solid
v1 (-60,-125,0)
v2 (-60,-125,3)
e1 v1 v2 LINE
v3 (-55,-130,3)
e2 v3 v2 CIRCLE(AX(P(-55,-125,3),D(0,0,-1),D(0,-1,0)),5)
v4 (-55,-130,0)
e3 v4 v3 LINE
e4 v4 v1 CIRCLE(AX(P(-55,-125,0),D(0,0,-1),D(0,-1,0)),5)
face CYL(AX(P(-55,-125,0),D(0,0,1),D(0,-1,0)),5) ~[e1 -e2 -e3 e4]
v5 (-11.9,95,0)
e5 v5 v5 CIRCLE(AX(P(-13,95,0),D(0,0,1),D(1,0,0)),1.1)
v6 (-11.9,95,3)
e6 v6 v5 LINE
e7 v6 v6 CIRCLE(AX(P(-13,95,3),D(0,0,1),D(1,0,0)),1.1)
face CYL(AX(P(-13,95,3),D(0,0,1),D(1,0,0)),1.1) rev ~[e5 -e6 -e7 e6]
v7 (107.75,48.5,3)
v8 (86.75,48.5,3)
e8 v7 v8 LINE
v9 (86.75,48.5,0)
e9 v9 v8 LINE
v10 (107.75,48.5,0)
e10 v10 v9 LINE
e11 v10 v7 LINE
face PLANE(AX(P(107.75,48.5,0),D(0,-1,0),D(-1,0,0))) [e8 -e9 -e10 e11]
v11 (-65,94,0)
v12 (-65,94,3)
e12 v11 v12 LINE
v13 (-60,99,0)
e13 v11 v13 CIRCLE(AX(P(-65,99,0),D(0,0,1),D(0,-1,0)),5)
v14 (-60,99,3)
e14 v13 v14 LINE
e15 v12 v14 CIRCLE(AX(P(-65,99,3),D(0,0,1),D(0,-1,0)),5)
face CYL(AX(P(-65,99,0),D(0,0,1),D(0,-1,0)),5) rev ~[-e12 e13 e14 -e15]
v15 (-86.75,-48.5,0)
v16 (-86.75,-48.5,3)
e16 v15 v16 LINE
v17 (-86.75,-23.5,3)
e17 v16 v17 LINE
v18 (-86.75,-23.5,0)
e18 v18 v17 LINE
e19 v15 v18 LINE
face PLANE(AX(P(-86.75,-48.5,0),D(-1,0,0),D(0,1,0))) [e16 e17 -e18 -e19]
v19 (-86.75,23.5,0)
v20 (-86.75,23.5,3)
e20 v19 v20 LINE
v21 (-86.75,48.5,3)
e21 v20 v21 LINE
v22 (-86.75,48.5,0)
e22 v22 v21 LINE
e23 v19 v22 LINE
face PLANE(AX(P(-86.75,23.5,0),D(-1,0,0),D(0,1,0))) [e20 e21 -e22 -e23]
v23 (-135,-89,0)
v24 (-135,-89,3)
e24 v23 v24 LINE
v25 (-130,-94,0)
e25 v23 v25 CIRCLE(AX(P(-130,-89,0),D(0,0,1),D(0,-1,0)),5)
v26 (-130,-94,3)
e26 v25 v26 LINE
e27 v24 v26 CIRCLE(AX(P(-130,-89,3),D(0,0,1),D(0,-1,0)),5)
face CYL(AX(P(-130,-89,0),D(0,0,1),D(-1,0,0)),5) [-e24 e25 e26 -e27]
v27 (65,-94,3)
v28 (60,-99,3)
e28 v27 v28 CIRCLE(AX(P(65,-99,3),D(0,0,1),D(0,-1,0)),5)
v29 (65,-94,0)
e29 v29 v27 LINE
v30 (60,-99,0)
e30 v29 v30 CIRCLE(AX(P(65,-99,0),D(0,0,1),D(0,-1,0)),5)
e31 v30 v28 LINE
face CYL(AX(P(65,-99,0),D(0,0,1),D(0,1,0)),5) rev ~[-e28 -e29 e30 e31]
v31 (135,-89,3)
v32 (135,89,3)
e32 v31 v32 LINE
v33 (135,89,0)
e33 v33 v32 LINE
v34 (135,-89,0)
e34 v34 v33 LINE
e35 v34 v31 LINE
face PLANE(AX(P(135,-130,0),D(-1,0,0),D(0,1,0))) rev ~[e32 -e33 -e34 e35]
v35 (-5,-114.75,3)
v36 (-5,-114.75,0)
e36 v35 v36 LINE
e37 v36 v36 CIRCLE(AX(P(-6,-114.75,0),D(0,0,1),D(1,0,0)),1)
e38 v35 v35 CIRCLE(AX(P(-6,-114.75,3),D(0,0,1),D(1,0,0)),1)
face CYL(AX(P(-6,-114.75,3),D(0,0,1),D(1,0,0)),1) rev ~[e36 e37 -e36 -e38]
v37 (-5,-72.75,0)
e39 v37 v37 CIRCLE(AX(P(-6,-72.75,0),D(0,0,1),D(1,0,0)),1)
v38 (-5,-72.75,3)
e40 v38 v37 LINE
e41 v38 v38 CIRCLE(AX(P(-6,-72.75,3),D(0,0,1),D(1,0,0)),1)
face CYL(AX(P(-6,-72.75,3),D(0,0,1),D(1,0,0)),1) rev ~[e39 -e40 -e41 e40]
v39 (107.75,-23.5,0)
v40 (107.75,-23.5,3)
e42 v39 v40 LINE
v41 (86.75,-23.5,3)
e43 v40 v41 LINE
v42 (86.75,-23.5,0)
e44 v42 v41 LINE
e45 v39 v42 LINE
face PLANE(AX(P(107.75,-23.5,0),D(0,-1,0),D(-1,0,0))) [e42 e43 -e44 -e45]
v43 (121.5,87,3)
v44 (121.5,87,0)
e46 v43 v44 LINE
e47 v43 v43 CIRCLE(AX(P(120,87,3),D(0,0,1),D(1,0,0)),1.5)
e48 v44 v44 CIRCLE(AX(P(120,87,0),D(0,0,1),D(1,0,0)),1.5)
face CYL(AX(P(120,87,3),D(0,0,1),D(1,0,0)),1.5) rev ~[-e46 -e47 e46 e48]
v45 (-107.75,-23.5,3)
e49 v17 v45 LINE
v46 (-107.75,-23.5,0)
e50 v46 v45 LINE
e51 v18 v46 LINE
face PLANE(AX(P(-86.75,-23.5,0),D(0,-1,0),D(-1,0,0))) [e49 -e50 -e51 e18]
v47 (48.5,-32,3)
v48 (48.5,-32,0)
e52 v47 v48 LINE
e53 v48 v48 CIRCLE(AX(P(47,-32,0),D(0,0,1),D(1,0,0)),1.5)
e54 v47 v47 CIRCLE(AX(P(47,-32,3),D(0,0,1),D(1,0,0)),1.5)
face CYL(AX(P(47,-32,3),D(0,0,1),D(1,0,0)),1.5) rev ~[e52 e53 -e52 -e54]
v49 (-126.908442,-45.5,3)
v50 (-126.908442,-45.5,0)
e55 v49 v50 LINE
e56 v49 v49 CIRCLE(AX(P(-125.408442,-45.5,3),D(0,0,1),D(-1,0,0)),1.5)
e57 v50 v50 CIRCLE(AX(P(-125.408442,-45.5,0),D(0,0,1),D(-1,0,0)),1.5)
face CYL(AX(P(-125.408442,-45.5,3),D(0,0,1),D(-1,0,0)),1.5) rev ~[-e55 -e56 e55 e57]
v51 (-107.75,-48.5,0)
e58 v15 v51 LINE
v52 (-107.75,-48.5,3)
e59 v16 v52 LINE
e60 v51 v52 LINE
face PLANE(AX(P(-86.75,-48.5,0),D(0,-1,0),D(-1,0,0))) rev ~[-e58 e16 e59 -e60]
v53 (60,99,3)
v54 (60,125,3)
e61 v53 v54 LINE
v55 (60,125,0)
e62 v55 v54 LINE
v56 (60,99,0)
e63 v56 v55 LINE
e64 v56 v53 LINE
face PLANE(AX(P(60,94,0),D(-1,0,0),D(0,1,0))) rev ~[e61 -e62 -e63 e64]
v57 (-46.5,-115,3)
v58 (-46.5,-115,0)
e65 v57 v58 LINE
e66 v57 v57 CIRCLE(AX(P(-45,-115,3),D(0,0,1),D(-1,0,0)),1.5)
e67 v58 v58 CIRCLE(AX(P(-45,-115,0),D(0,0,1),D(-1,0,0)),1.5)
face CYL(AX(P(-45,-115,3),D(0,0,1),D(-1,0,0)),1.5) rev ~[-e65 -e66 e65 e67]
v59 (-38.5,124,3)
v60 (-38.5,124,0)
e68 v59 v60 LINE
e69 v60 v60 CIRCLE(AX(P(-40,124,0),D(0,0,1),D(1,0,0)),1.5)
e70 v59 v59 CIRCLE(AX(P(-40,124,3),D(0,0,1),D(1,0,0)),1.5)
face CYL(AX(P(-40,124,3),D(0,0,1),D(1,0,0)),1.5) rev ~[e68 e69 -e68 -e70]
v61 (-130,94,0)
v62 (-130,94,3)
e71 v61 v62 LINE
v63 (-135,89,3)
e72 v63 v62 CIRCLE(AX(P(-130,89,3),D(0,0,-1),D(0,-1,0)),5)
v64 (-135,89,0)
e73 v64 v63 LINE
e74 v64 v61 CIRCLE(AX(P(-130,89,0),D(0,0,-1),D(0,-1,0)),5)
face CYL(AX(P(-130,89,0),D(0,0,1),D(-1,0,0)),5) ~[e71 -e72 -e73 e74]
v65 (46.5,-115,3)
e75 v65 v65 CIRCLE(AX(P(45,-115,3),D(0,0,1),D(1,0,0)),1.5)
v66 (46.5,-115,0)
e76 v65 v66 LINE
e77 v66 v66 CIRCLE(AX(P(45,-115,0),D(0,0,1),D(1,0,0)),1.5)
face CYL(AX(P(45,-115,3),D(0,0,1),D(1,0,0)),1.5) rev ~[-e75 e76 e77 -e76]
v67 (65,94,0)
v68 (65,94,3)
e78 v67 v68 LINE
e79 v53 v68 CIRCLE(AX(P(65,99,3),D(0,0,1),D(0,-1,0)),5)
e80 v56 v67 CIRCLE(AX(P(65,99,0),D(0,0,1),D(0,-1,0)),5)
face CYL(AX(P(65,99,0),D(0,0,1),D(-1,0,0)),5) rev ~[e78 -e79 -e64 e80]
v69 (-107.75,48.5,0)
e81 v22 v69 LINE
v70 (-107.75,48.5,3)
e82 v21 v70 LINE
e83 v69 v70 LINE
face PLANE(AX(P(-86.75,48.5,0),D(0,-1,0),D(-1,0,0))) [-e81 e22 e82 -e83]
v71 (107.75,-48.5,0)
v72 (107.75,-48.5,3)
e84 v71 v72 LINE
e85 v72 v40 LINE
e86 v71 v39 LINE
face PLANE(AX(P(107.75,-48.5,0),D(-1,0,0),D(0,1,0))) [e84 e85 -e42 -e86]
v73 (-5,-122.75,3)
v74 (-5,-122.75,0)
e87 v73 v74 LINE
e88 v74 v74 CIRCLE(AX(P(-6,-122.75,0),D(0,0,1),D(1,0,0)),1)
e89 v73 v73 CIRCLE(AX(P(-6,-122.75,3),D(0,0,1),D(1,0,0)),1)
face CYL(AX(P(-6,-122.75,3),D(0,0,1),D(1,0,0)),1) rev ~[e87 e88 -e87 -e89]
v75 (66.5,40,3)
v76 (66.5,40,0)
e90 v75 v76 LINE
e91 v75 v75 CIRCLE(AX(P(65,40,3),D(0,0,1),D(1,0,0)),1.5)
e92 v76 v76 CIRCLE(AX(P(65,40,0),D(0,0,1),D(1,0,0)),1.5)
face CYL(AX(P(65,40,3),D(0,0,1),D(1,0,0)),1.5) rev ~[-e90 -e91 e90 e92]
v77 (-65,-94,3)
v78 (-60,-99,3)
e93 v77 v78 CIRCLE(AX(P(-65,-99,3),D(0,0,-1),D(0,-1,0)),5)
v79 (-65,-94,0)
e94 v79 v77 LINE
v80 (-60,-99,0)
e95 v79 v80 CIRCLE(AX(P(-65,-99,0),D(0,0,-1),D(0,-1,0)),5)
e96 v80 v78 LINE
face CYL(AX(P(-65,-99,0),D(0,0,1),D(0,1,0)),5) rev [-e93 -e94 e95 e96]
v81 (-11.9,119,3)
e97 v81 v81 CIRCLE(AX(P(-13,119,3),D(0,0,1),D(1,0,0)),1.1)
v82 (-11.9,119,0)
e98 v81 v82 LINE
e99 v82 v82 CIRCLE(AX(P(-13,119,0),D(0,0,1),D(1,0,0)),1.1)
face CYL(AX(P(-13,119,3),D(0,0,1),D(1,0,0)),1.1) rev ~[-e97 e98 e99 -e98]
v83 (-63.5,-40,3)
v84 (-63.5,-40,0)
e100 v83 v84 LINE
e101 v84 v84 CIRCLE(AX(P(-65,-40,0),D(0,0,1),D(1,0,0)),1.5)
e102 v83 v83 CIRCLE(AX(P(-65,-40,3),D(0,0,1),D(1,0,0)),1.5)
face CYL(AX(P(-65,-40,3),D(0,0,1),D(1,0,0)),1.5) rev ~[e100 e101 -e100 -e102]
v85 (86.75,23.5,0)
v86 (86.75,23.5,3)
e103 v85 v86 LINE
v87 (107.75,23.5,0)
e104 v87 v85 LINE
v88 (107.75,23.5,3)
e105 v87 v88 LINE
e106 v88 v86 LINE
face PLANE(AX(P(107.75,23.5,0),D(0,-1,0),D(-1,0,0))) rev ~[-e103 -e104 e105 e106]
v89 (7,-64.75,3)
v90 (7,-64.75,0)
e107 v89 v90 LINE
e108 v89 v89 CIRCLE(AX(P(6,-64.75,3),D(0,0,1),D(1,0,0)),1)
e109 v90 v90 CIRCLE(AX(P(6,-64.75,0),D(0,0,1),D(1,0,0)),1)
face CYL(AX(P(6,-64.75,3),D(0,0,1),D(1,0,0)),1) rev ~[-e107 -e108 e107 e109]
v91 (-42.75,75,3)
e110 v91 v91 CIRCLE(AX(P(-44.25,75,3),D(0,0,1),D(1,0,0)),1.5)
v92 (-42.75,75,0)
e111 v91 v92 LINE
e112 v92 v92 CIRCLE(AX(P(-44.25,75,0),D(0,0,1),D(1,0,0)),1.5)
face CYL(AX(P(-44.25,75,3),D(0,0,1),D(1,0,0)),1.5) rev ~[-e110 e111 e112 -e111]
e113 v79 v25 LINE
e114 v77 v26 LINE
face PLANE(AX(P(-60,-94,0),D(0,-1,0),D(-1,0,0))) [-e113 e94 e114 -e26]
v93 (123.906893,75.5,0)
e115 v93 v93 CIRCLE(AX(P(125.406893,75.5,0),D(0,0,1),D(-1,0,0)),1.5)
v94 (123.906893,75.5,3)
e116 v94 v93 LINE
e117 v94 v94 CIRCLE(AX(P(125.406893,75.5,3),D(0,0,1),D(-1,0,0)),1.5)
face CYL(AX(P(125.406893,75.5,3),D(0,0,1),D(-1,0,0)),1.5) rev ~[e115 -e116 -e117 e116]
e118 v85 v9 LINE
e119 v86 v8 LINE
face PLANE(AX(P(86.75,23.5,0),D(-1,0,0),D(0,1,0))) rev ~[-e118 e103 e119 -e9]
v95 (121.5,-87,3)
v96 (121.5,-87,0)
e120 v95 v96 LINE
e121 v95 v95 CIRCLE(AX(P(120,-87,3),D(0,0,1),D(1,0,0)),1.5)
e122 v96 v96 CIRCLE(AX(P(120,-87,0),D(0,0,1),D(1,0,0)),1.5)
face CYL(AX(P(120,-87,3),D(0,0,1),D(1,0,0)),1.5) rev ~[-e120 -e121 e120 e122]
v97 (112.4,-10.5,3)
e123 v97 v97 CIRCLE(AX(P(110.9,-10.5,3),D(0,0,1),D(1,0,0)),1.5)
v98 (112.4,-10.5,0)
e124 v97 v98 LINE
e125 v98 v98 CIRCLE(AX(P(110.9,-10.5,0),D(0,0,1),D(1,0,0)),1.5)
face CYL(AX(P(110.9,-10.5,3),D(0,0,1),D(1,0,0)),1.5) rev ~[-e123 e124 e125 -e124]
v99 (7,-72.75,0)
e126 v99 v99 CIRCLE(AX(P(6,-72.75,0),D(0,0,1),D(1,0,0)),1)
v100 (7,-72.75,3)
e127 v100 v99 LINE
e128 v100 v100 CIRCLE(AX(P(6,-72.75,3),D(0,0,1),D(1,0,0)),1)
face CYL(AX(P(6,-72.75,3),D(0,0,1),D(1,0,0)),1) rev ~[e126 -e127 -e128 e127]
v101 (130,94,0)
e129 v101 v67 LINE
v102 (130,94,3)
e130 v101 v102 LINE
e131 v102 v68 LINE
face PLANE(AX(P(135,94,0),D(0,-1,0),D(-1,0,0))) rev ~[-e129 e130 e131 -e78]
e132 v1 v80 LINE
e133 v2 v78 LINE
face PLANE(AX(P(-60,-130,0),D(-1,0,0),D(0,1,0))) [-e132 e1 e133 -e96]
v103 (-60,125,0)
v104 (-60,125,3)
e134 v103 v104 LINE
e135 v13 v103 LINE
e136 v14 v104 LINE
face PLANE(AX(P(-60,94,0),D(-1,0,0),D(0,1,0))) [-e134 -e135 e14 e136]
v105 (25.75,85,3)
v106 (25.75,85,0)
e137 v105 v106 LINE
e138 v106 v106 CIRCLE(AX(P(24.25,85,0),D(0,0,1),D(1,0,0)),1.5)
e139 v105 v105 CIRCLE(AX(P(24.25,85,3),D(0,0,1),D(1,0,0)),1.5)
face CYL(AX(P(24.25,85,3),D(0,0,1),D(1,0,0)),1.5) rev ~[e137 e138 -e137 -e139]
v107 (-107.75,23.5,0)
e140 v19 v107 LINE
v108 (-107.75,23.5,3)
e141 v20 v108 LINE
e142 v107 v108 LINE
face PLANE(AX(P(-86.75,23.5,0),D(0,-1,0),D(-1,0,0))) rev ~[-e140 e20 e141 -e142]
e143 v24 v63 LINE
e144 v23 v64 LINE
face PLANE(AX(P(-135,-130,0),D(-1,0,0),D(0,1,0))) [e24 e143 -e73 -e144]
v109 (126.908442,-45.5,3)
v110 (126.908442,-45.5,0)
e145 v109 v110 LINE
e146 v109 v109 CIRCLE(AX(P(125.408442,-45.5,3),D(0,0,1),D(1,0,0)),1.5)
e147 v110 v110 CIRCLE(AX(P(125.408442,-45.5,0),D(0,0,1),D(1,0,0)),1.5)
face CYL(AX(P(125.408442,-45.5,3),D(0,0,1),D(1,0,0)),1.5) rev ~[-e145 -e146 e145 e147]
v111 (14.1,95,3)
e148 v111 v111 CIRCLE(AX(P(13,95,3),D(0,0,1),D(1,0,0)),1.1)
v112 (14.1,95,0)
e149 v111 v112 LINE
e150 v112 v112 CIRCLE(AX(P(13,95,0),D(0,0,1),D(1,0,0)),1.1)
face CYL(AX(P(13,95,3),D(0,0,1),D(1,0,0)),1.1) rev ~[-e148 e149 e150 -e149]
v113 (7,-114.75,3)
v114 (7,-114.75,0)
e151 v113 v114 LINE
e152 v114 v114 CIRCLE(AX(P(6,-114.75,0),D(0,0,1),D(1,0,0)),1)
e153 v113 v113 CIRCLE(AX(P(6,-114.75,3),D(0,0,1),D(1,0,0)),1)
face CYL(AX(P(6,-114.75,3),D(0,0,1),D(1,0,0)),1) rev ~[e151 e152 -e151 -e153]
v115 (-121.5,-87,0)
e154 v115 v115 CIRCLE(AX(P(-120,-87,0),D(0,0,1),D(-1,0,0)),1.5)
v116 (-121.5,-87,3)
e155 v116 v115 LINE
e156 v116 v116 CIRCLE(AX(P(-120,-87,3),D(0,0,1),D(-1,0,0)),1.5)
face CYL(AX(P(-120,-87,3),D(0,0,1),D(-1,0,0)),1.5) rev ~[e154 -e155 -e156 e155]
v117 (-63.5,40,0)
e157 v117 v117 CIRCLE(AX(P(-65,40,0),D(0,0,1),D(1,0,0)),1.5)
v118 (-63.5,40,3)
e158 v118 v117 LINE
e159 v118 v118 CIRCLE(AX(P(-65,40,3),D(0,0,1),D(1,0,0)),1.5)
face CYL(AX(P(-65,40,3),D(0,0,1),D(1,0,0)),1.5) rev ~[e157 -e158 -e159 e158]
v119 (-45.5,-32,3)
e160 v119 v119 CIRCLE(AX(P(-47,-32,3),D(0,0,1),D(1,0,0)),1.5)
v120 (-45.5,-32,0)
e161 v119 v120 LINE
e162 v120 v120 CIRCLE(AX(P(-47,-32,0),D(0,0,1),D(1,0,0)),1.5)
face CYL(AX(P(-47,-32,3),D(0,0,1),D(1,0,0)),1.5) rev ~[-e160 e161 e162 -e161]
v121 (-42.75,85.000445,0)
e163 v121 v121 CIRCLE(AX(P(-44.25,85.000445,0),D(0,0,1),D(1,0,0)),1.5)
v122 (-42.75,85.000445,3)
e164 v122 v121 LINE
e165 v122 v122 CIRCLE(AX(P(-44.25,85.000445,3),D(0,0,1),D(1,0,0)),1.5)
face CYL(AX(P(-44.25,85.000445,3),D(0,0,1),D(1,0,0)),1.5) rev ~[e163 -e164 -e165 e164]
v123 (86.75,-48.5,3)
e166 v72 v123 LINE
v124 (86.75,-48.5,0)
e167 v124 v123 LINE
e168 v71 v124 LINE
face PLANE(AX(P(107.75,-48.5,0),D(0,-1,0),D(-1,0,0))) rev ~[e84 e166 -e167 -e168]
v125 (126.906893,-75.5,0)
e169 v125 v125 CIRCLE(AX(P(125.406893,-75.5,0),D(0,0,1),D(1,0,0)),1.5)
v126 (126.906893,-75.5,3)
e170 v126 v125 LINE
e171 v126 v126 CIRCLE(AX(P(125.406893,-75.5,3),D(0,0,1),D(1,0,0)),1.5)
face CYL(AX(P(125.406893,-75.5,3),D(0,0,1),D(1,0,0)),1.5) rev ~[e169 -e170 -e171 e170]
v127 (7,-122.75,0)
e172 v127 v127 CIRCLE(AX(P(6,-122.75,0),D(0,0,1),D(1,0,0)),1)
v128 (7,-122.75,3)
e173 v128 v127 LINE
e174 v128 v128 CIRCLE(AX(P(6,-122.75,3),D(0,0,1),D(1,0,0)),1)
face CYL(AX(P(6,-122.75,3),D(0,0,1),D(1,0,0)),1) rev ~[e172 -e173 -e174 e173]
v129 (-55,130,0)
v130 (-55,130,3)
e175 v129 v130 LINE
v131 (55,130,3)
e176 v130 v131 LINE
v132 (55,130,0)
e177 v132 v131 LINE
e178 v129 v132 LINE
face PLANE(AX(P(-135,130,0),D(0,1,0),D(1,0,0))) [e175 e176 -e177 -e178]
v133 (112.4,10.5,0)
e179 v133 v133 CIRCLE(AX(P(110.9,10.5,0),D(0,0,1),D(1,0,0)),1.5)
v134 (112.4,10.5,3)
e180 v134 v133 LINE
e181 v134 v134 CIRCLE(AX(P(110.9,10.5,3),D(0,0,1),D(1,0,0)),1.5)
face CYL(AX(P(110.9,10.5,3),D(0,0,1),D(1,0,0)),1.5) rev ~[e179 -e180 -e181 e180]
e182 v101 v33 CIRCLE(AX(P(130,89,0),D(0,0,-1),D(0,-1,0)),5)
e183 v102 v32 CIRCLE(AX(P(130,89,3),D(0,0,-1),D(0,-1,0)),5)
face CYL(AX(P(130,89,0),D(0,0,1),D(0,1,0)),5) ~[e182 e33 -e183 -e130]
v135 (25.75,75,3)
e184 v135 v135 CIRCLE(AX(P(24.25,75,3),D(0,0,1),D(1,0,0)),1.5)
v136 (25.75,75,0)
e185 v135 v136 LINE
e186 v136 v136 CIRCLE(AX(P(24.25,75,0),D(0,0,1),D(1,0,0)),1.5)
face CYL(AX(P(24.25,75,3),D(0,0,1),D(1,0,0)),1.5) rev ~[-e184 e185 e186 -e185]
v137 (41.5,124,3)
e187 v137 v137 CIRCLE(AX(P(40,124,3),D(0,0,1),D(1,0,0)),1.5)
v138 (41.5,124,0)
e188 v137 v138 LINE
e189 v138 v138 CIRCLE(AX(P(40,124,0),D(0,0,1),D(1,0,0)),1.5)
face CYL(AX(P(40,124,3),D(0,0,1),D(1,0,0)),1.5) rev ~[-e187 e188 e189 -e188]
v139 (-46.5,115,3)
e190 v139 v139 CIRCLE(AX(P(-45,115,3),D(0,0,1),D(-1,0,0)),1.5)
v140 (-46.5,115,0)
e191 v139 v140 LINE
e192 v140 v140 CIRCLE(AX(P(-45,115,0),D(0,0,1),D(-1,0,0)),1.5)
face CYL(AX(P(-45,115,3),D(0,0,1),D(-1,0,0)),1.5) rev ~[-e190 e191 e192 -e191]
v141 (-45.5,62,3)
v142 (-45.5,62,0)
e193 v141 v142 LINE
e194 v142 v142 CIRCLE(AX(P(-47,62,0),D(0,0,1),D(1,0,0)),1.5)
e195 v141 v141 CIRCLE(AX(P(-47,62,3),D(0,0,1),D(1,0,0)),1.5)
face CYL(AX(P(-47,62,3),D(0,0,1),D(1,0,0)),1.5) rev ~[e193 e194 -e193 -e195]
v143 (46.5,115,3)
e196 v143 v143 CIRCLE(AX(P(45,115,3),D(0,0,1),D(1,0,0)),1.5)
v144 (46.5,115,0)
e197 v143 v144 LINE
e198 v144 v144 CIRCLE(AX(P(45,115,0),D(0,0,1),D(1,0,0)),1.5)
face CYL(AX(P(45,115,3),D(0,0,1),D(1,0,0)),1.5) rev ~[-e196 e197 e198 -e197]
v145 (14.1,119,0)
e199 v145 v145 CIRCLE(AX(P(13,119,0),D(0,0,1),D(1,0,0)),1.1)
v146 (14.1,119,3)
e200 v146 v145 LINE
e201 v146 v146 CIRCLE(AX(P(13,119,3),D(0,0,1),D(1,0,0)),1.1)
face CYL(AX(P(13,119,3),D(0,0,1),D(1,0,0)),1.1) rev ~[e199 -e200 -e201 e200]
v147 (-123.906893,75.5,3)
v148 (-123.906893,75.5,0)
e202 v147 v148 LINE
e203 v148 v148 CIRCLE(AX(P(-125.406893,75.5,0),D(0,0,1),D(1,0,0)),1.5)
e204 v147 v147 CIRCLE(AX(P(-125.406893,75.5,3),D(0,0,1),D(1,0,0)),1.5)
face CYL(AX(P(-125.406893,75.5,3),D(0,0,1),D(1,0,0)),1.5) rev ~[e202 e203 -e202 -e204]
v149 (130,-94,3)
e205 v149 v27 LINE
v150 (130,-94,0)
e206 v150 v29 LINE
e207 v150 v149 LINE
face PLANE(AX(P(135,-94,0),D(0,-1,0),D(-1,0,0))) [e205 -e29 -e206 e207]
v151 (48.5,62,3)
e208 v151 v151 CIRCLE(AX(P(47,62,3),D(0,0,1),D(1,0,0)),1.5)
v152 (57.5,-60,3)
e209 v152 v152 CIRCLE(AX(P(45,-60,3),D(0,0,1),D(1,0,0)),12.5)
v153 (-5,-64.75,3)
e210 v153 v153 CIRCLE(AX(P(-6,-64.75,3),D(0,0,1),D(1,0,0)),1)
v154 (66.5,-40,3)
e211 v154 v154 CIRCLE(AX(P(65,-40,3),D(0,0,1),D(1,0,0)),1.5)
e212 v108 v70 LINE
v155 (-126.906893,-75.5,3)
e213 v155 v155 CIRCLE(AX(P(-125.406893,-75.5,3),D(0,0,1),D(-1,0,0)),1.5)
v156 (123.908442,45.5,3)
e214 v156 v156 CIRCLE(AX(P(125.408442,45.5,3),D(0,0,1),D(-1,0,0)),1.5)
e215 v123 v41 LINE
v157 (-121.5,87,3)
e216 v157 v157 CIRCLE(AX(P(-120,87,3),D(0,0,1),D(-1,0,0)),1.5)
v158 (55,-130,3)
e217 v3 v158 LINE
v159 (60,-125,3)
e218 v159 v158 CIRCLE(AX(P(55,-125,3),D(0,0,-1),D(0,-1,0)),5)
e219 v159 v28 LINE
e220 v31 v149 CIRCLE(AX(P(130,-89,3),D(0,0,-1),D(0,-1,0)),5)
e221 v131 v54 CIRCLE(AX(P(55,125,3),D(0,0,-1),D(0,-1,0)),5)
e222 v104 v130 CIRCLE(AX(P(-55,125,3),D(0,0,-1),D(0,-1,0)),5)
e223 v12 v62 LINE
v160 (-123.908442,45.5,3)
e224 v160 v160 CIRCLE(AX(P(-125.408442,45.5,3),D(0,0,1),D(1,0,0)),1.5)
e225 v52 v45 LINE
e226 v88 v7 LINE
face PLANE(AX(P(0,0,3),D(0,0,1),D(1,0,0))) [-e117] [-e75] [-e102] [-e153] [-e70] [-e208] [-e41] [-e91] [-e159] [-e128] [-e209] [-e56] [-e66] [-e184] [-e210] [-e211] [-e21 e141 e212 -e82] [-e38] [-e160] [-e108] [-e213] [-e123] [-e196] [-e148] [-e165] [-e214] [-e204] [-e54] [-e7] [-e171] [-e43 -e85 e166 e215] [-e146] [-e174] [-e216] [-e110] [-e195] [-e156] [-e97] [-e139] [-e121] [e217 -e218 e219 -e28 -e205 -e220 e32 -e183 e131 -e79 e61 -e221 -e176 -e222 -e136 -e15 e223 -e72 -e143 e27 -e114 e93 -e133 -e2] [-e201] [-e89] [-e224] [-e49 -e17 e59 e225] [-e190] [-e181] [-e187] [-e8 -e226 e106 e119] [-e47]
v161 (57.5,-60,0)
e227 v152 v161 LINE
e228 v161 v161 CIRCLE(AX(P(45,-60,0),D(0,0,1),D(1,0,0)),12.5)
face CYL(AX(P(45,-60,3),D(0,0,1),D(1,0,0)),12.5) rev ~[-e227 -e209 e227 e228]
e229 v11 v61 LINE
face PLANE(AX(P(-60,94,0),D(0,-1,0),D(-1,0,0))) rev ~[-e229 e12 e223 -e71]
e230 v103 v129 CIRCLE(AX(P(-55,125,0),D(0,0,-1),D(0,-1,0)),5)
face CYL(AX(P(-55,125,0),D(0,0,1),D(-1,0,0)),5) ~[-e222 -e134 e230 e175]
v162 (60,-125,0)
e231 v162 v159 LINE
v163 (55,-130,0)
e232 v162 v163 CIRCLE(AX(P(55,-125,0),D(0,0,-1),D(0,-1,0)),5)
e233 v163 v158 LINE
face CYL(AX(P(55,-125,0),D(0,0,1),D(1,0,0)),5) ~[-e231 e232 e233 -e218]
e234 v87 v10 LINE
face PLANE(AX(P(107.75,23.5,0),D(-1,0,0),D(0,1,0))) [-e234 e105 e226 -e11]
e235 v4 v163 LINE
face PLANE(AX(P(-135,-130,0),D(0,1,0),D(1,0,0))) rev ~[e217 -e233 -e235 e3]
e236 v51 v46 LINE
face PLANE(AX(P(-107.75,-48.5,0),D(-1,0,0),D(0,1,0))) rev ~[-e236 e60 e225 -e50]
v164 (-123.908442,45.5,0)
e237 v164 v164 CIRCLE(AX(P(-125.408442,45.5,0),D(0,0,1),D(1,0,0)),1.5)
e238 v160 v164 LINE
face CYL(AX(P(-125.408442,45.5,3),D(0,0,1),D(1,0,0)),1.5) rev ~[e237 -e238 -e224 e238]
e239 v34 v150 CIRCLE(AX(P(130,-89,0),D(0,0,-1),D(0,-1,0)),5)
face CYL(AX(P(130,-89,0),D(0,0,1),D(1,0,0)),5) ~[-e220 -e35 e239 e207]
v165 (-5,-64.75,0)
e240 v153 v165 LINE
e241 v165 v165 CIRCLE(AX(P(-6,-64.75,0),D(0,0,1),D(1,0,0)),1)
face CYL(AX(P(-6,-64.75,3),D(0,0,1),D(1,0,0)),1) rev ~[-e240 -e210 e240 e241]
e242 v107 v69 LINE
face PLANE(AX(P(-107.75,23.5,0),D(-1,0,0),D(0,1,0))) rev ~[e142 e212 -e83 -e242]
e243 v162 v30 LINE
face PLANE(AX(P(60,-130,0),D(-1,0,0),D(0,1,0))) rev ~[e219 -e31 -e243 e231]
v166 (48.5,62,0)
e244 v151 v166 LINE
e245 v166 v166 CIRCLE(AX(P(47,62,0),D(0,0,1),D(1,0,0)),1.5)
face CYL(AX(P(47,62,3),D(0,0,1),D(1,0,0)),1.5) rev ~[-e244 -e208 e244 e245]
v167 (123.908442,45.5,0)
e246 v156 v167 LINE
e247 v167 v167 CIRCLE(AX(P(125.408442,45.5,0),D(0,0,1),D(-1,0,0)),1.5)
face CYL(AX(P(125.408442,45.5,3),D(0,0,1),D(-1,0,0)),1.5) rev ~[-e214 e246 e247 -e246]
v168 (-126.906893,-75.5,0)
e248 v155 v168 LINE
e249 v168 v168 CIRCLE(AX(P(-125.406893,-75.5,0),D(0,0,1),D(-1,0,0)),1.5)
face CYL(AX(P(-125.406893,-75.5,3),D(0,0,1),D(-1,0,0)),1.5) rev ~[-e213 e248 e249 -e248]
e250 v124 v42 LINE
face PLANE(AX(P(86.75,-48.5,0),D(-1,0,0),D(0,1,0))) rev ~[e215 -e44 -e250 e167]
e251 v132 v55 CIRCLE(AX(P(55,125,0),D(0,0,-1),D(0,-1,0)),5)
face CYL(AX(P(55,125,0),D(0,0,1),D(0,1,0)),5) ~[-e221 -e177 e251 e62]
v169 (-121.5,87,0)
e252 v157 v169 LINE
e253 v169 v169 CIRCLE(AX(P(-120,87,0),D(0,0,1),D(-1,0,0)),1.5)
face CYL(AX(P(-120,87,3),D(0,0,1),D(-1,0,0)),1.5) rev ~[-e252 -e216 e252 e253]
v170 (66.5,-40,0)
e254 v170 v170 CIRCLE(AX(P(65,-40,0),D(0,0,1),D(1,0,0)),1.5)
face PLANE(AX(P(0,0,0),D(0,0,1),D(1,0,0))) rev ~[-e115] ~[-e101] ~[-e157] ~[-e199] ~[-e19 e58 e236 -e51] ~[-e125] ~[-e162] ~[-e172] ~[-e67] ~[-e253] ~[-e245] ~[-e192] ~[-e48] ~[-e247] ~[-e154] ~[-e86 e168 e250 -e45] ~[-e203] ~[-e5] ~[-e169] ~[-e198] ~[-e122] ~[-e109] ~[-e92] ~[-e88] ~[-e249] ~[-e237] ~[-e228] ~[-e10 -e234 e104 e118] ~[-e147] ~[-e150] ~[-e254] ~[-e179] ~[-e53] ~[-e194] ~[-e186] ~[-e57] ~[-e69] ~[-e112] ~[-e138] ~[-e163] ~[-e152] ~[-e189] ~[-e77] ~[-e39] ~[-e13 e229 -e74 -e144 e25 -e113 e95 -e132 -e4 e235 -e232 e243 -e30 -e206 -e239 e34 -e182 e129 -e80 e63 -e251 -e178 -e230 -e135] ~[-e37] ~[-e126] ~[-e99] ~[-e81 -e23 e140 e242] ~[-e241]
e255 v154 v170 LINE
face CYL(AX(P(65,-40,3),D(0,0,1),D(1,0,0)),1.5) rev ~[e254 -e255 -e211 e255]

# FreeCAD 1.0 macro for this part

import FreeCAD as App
import Part
import Sketcher
from FreeCAD import Vector


def edges_at(feature, points):
    """Names of the edges that pass closest to the given points."""
    edges = feature.Shape.Edges
    near = lambda p: min(range(len(edges)), key=lambda i: edges[i].distToShape(Part.Vertex(*p))[0])
    return sorted({f"Edge{near(p) + 1}" for p in points})

doc = App.newDocument("Part")
body = doc.addObject("PartDesign::Body", "Body")

# Sketch on XY plane
sketch1 = body.newObject("Sketcher::SketchObject", "Sketch")
sketch1.AttachmentSupport = (doc.getObject("XY_Plane"), [""])
sketch1.MapMode = "FlatFace"
sketch1.addGeometry([
    Part.LineSegment(Vector(-135, 130, 0), Vector(-135, -130, 0)),
    Part.LineSegment(Vector(-135, -130, 0), Vector(135, -130, 0)),
    Part.LineSegment(Vector(135, -130, 0), Vector(135, 130, 0)),
    Part.LineSegment(Vector(135, 130, 0), Vector(-135, 130, 0)),
], False)
sketch1.addConstraint([
    Sketcher.Constraint("Coincident", 0, 2, 1, 1),
    Sketcher.Constraint("Coincident", 1, 2, 2, 1),
    Sketcher.Constraint("Coincident", 2, 2, 3, 1),
    Sketcher.Constraint("Coincident", 3, 2, 0, 1),
    Sketcher.Constraint("Vertical", 0),
    Sketcher.Constraint("Horizontal", 1),
    Sketcher.Constraint("Vertical", 2),
    Sketcher.Constraint("Horizontal", 3),
    Sketcher.Constraint("Symmetric", 0, 2, 2, 2, -1, 1),
    Sketcher.Constraint("DistanceX", 1, 1, 1, 2, 270.0),
    Sketcher.Constraint("DistanceY", 0, 2, 0, 1, 260.0),
])
pad1 = body.newObject("PartDesign::Pad", "Pad")
pad1.Profile = sketch1
pad1.Length = 3

# Sketch on XY plane
sketch2 = body.newObject("Sketcher::SketchObject", "Sketch001")
sketch2.AttachmentSupport = (doc.getObject("XY_Plane"), [""])
sketch2.MapMode = "FlatFace"
sketch2.addGeometry([
    Part.LineSegment(Vector(-60, -94, 0), Vector(-60, -130, 0)),
    Part.LineSegment(Vector(-60, -130, 0), Vector(-135, -130, 0)),
    Part.LineSegment(Vector(-135, -130, 0), Vector(-135, -94, 0)),
    Part.LineSegment(Vector(-135, -94, 0), Vector(-60, -94, 0)),
], False)
sketch2.addConstraint([
    Sketcher.Constraint("Coincident", 0, 2, 1, 1),
    Sketcher.Constraint("Coincident", 1, 2, 2, 1),
    Sketcher.Constraint("Coincident", 2, 2, 3, 1),
    Sketcher.Constraint("Coincident", 3, 2, 0, 1),
    Sketcher.Constraint("Vertical", 0),
    Sketcher.Constraint("Horizontal", 1),
    Sketcher.Constraint("Vertical", 2),
    Sketcher.Constraint("Horizontal", 3),
    Sketcher.Constraint("DistanceX", 1, 2, 1, 1, 75.0),
    Sketcher.Constraint("DistanceY", 0, 2, 0, 1, 36.0),
    Sketcher.Constraint("DistanceX", 0, 2, -1, 1, 60.0),
    Sketcher.Constraint("DistanceY", 0, 2, -1, 1, 130.0),
])
pocket1 = body.newObject("PartDesign::Pocket", "Pocket")
pocket1.Profile = sketch2
pocket1.Type = "UpToFirst"
pocket1.Reversed = True

# Sketch on XY plane
sketch3 = body.newObject("Sketcher::SketchObject", "Sketch002")
sketch3.AttachmentSupport = (doc.getObject("XY_Plane"), [""])
sketch3.MapMode = "FlatFace"
sketch3.addGeometry([
    Part.LineSegment(Vector(-87, -24, 0), Vector(-87, -48, 0)),
    Part.LineSegment(Vector(-87, -48, 0), Vector(-108, -48, 0)),
    Part.LineSegment(Vector(-108, -48, 0), Vector(-108, -24, 0)),
    Part.LineSegment(Vector(-108, -24, 0), Vector(-87, -24, 0)),
], False)
sketch3.addConstraint([
    Sketcher.Constraint("Coincident", 0, 2, 1, 1),
    Sketcher.Constraint("Coincident", 1, 2, 2, 1),
    Sketcher.Constraint("Coincident", 2, 2, 3, 1),
    Sketcher.Constraint("Coincident", 3, 2, 0, 1),
    Sketcher.Constraint("Vertical", 0),
    Sketcher.Constraint("Horizontal", 1),
    Sketcher.Constraint("Vertical", 2),
    Sketcher.Constraint("Horizontal", 3),
    Sketcher.Constraint("DistanceX", 1, 2, 1, 1, 21.0),
    Sketcher.Constraint("DistanceY", 0, 2, 0, 1, 25.0),
    Sketcher.Constraint("DistanceY", 0, 2, -1, 1, 48.5),
    Sketcher.Constraint("DistanceX", 0, 2, -1, 1, 86.75),
])
pocket2 = body.newObject("PartDesign::Pocket", "Pocket001")
pocket2.Profile = sketch3
pocket2.Type = "UpToFirst"
pocket2.Reversed = True

# Sketch on XY plane
sketch4 = body.newObject("Sketcher::SketchObject", "Sketch003")
sketch4.AttachmentSupport = (doc.getObject("XY_Plane"), [""])
sketch4.MapMode = "FlatFace"
sketch4.addGeometry([
    Part.LineSegment(Vector(135, 130, 0), Vector(135, 94, 0)),
    Part.LineSegment(Vector(135, 94, 0), Vector(60, 94, 0)),
    Part.LineSegment(Vector(60, 94, 0), Vector(60, 130, 0)),
    Part.LineSegment(Vector(60, 130, 0), Vector(135, 130, 0)),
], False)
sketch4.addConstraint([
    Sketcher.Constraint("Coincident", 0, 2, 1, 1),
    Sketcher.Constraint("Coincident", 1, 2, 2, 1),
    Sketcher.Constraint("Coincident", 2, 2, 3, 1),
    Sketcher.Constraint("Coincident", 3, 2, 0, 1),
    Sketcher.Constraint("Vertical", 0),
    Sketcher.Constraint("Horizontal", 1),
    Sketcher.Constraint("Vertical", 2),
    Sketcher.Constraint("Horizontal", 3),
    Sketcher.Constraint("DistanceX", 1, 2, 1, 1, 75.0),
    Sketcher.Constraint("DistanceY", 0, 2, 0, 1, 36.0),
    Sketcher.Constraint("DistanceX", -1, 1, 0, 2, 135.0),
    Sketcher.Constraint("DistanceY", -1, 1, 0, 2, 94.0),
])
pocket3 = body.newObject("PartDesign::Pocket", "Pocket002")
pocket3.Profile = sketch4
pocket3.Type = "UpToFirst"
pocket3.Reversed = True

# Sketch on XY plane
sketch5 = body.newObject("Sketcher::SketchObject", "Sketch004")
sketch5.AttachmentSupport = (doc.getObject("XY_Plane"), [""])
sketch5.MapMode = "FlatFace"
sketch5.addGeometry([
    Part.LineSegment(Vector(108, -24, 0), Vector(108, -48, 0)),
    Part.LineSegment(Vector(108, -48, 0), Vector(87, -48, 0)),
    Part.LineSegment(Vector(87, -48, 0), Vector(87, -24, 0)),
    Part.LineSegment(Vector(87, -24, 0), Vector(108, -24, 0)),
], False)
sketch5.addConstraint([
    Sketcher.Constraint("Coincident", 0, 2, 1, 1),
    Sketcher.Constraint("Coincident", 1, 2, 2, 1),
    Sketcher.Constraint("Coincident", 2, 2, 3, 1),
    Sketcher.Constraint("Coincident", 3, 2, 0, 1),
    Sketcher.Constraint("Vertical", 0),
    Sketcher.Constraint("Horizontal", 1),
    Sketcher.Constraint("Vertical", 2),
    Sketcher.Constraint("Horizontal", 3),
    Sketcher.Constraint("DistanceX", 1, 2, 1, 1, 21.0),
    Sketcher.Constraint("DistanceY", 0, 2, 0, 1, 25.0),
    Sketcher.Constraint("DistanceY", 0, 2, -1, 1, 48.5),
    Sketcher.Constraint("DistanceX", -1, 1, 0, 2, 107.75),
])
pocket4 = body.newObject("PartDesign::Pocket", "Pocket003")
pocket4.Profile = sketch5
pocket4.Type = "UpToFirst"
pocket4.Reversed = True

# Sketch on XY plane
sketch6 = body.newObject("Sketcher::SketchObject", "Sketch005")
sketch6.AttachmentSupport = (doc.getObject("XY_Plane"), [""])
sketch6.MapMode = "FlatFace"
sketch6.addGeometry([
    Part.LineSegment(Vector(135, -94, 0), Vector(135, -130, 0)),
    Part.LineSegment(Vector(135, -130, 0), Vector(60, -130, 0)),
    Part.LineSegment(Vector(60, -130, 0), Vector(60, -94, 0)),
    Part.LineSegment(Vector(60, -94, 0), Vector(135, -94, 0)),
], False)
sketch6.addConstraint([
    Sketcher.Constraint("Coincident", 0, 2, 1, 1),
    Sketcher.Constraint("Coincident", 1, 2, 2, 1),
    Sketcher.Constraint("Coincident", 2, 2, 3, 1),
    Sketcher.Constraint("Coincident", 3, 2, 0, 1),
    Sketcher.Constraint("Vertical", 0),
    Sketcher.Constraint("Horizontal", 1),
    Sketcher.Constraint("Vertical", 2),
    Sketcher.Constraint("Horizontal", 3),
    Sketcher.Constraint("DistanceX", 1, 2, 1, 1, 75.0),
    Sketcher.Constraint("DistanceY", 0, 2, 0, 1, 36.0),
    Sketcher.Constraint("DistanceX", -1, 1, 0, 2, 135.0),
    Sketcher.Constraint("DistanceY", 0, 2, -1, 1, 130.0),
])
pocket5 = body.newObject("PartDesign::Pocket", "Pocket004")
pocket5.Profile = sketch6
pocket5.Type = "UpToFirst"
pocket5.Reversed = True

# Sketch on XY plane
sketch7 = body.newObject("Sketcher::SketchObject", "Sketch006")
sketch7.AttachmentSupport = (doc.getObject("XY_Plane"), [""])
sketch7.MapMode = "FlatFace"
sketch7.addGeometry([
    Part.LineSegment(Vector(108, 48, 0), Vector(108, 24, 0)),
    Part.LineSegment(Vector(108, 24, 0), Vector(87, 24, 0)),
    Part.LineSegment(Vector(87, 24, 0), Vector(87, 48, 0)),
    Part.LineSegment(Vector(87, 48, 0), Vector(108, 48, 0)),
], False)
sketch7.addConstraint([
    Sketcher.Constraint("Coincident", 0, 2, 1, 1),
    Sketcher.Constraint("Coincident", 1, 2, 2, 1),
    Sketcher.Constraint("Coincident", 2, 2, 3, 1),
    Sketcher.Constraint("Coincident", 3, 2, 0, 1),
    Sketcher.Constraint("Vertical", 0),
    Sketcher.Constraint("Horizontal", 1),
    Sketcher.Constraint("Vertical", 2),
    Sketcher.Constraint("Horizontal", 3),
    Sketcher.Constraint("DistanceX", 1, 2, 1, 1, 21.0),
    Sketcher.Constraint("DistanceY", 0, 2, 0, 1, 25.0),
    Sketcher.Constraint("DistanceY", -1, 1, 0, 2, 23.5),
    Sketcher.Constraint("DistanceX", -1, 1, 0, 2, 107.75),
])
pocket6 = body.newObject("PartDesign::Pocket", "Pocket005")
pocket6.Profile = sketch7
pocket6.Type = "UpToFirst"
pocket6.Reversed = True

# Sketch on XY plane
sketch8 = body.newObject("Sketcher::SketchObject", "Sketch007")
sketch8.AttachmentSupport = (doc.getObject("XY_Plane"), [""])
sketch8.MapMode = "FlatFace"
sketch8.addGeometry([
    Part.LineSegment(Vector(-87, 48, 0), Vector(-87, 24, 0)),
    Part.LineSegment(Vector(-87, 24, 0), Vector(-108, 24, 0)),
    Part.LineSegment(Vector(-108, 24, 0), Vector(-108, 48, 0)),
    Part.LineSegment(Vector(-108, 48, 0), Vector(-87, 48, 0)),
], False)
sketch8.addConstraint([
    Sketcher.Constraint("Coincident", 0, 2, 1, 1),
    Sketcher.Constraint("Coincident", 1, 2, 2, 1),
    Sketcher.Constraint("Coincident", 2, 2, 3, 1),
    Sketcher.Constraint("Coincident", 3, 2, 0, 1),
    Sketcher.Constraint("Vertical", 0),
    Sketcher.Constraint("Horizontal", 1),
    Sketcher.Constraint("Vertical", 2),
    Sketcher.Constraint("Horizontal", 3),
    Sketcher.Constraint("DistanceX", 1, 2, 1, 1, 21.0),
    Sketcher.Constraint("DistanceY", 0, 2, 0, 1, 25.0),
    Sketcher.Constraint("DistanceY", -1, 1, 0, 2, 23.5),
    Sketcher.Constraint("DistanceX", 0, 2, -1, 1, 86.75),
])
pocket7 = body.newObject("PartDesign::Pocket", "Pocket006")
pocket7.Profile = sketch8
pocket7.Type = "UpToFirst"
pocket7.Reversed = True

# Sketch on XY plane
sketch9 = body.newObject("Sketcher::SketchObject", "Sketch008")
sketch9.AttachmentSupport = (doc.getObject("XY_Plane"), [""])
sketch9.MapMode = "FlatFace"
sketch9.addGeometry([
    Part.LineSegment(Vector(-60, 130, 0), Vector(-60, 94, 0)),
    Part.LineSegment(Vector(-60, 94, 0), Vector(-135, 94, 0)),
    Part.LineSegment(Vector(-135, 94, 0), Vector(-135, 130, 0)),
    Part.LineSegment(Vector(-135, 130, 0), Vector(-60, 130, 0)),
], False)
sketch9.addConstraint([
    Sketcher.Constraint("Coincident", 0, 2, 1, 1),
    Sketcher.Constraint("Coincident", 1, 2, 2, 1),
    Sketcher.Constraint("Coincident", 2, 2, 3, 1),
    Sketcher.Constraint("Coincident", 3, 2, 0, 1),
    Sketcher.Constraint("Vertical", 0),
    Sketcher.Constraint("Horizontal", 1),
    Sketcher.Constraint("Vertical", 2),
    Sketcher.Constraint("Horizontal", 3),
    Sketcher.Constraint("DistanceX", 1, 2, 1, 1, 75.0),
    Sketcher.Constraint("DistanceY", 0, 2, 0, 1, 36.0),
    Sketcher.Constraint("DistanceX", 0, 2, -1, 1, 60.0),
    Sketcher.Constraint("DistanceY", -1, 1, 0, 2, 94.0),
])
pocket8 = body.newObject("PartDesign::Pocket", "Pocket007")
pocket8.Profile = sketch9
pocket8.Type = "UpToFirst"
pocket8.Reversed = True
doc.recompute()

fillet = body.newObject("PartDesign::Fillet", "Fillet")
fillet.Base = (pocket8, edges_at(pocket8, [
    (135, 94, 1.5),
    (60, 130, 1.5),
    (60, 94, 1.5),
    (60, -130, 1.5),
    (135, -94, 1.5),
    (60, -94, 1.5),
    (-60, 130, 1.5),
    (-135, 94, 1.5),
    (-60, 94, 1.5),
    (-135, -94, 1.5),
    (-60, -130, 1.5),
    (-60, -94, 1.5),
]))
fillet.Radius = 5

# Sketch on XY plane
sketch10 = body.newObject("Sketcher::SketchObject", "Sketch009")
sketch10.AttachmentSupport = (doc.getObject("XY_Plane"), [""])
sketch10.MapMode = "FlatFace"
sketch10.AttachmentOffset = App.Placement(Vector(0, 0, 3), App.Rotation())
sketch10.addGeometry([
    Part.Circle(Vector(-47, -32, 0), Vector(0, 0, 1), 1.5),
    Part.Circle(Vector(47, -32, 0), Vector(0, 0, 1), 1.5),
    Part.Circle(Vector(47, 62, 0), Vector(0, 0, 1), 1.5),
    Part.Circle(Vector(-47, 62, 0), Vector(0, 0, 1), 1.5),
], False)
sketch10.addConstraint([
    Sketcher.Constraint("Equal", 0, 1),
    Sketcher.Constraint("Equal", 1, 2),
    Sketcher.Constraint("Equal", 2, 3),
    Sketcher.Constraint("Symmetric", 0, 3, 1, 3, -2),
    Sketcher.Constraint("Symmetric", 2, 3, 3, 3, -2),
    Sketcher.Constraint("Vertical", 1, 3, 2, 3),
    Sketcher.Constraint("Diameter", 0, 3.0),
    Sketcher.Constraint("DistanceX", 0, 3, -1, 1, 47.0),
    Sketcher.Constraint("DistanceY", 0, 3, -1, 1, 32.0),
    Sketcher.Constraint("DistanceY", -1, 1, 2, 3, 62.0),
])
pocket9 = body.newObject("PartDesign::Pocket", "Pocket008")
pocket9.Profile = sketch10
pocket9.Length = 10

# Sketch on XY plane
sketch11 = body.newObject("Sketcher::SketchObject", "Sketch010")
sketch11.AttachmentSupport = (doc.getObject("XY_Plane"), [""])
sketch11.MapMode = "FlatFace"
sketch11.AttachmentOffset = App.Placement(Vector(0, 0, 3), App.Rotation())
sketch11.addGeometry([
    Part.Circle(Vector(45, 115, 0), Vector(0, 0, 1), 1.5),  # 0
    Part.Circle(Vector(120, 87, 0), Vector(0, 0, 1), 1.5),  # 1
    Part.Circle(Vector(120, -87, 0), Vector(0, 0, 1), 1.5),  # 2
    Part.Circle(Vector(45, -115, 0), Vector(0, 0, 1), 1.5),  # 3
    Part.Circle(Vector(-45, -115, 0), Vector(0, 0, 1), 1.5),  # 4
    Part.Circle(Vector(-120, -87, 0), Vector(0, 0, 1), 1.5),  # 5
    Part.Circle(Vector(-120, 87, 0), Vector(0, 0, 1), 1.5),  # 6
    Part.Circle(Vector(-45, 115, 0), Vector(0, 0, 1), 1.5),  # 7
    Part.Circle(Vector(-65, 40, 0), Vector(0, 0, 1), 1.5),  # 8
    Part.Circle(Vector(65, 40, 0), Vector(0, 0, 1), 1.5),  # 9
    Part.Circle(Vector(-65, -40, 0), Vector(0, 0, 1), 1.5),  # 10
    Part.Circle(Vector(65, -40, 0), Vector(0, 0, 1), 1.5),  # 11
], False)
sketch11.addConstraint([
    Sketcher.Constraint("Equal", 0, 1),
    Sketcher.Constraint("Equal", 1, 2),
    Sketcher.Constraint("Equal", 2, 3),
    Sketcher.Constraint("Equal", 3, 4),
    Sketcher.Constraint("Equal", 4, 5),
    Sketcher.Constraint("Equal", 5, 6),
    Sketcher.Constraint("Equal", 6, 7),
    Sketcher.Constraint("Equal", 7, 8),
    Sketcher.Constraint("Equal", 8, 9),
    Sketcher.Constraint("Equal", 9, 10),
    Sketcher.Constraint("Equal", 10, 11),
    Sketcher.Constraint("Symmetric", 0, 3, 4, 3, -1, 1),
    Sketcher.Constraint("Symmetric", 1, 3, 5, 3, -1, 1),
    Sketcher.Constraint("Symmetric", 2, 3, 6, 3, -1, 1),
    Sketcher.Constraint("Symmetric", 3, 3, 7, 3, -1, 1),
    Sketcher.Constraint("Symmetric", 9, 3, 10, 3, -1, 1),
    Sketcher.Constraint("Symmetric", 8, 3, 11, 3, -1, 1),
    Sketcher.Constraint("Symmetric", 3, 3, 4, 3, -2),
    Sketcher.Constraint("Symmetric", 2, 3, 5, 3, -2),
    Sketcher.Constraint("Symmetric", 8, 3, 9, 3, -2),
    Sketcher.Constraint("Diameter", 0, 3.0),
    Sketcher.Constraint("DistanceX", -1, 1, 0, 3, 45.0),
    Sketcher.Constraint("DistanceY", -1, 1, 0, 3, 115.0),
    Sketcher.Constraint("DistanceX", -1, 1, 1, 3, 120.0),
    Sketcher.Constraint("DistanceY", -1, 1, 1, 3, 87.0),
    Sketcher.Constraint("DistanceX", 8, 3, -1, 1, 65.0),
    Sketcher.Constraint("DistanceY", -1, 1, 8, 3, 40.0),
])
pocket10 = body.newObject("PartDesign::Pocket", "Pocket009")
pocket10.Profile = sketch11
pocket10.Type = "ThroughAll"

# Sketch on XY plane
sketch12 = body.newObject("Sketcher::SketchObject", "Sketch011")
sketch12.AttachmentSupport = (doc.getObject("XY_Plane"), [""])
sketch12.MapMode = "FlatFace"
sketch12.AttachmentOffset = App.Placement(Vector(0, 0, 3), App.Rotation())
sketch12.addGeometry([
    Part.Circle(Vector(125.4, -45.5, 0), Vector(0, 0, 1), 1.5),  # 0
    Part.Circle(Vector(125.4, -75.5, 0), Vector(0, 0, 1), 1.5),  # 1
    Part.Circle(Vector(125.4, 75.5, 0), Vector(0, 0, 1), 1.5),  # 2
    Part.Circle(Vector(125.4, 45.5, 0), Vector(0, 0, 1), 1.5),  # 3
    Part.Circle(Vector(-125.4, -75.5, 0), Vector(0, 0, 1), 1.5),  # 4
    Part.Circle(Vector(-125.4, -45.5, 0), Vector(0, 0, 1), 1.5),  # 5
    Part.Circle(Vector(-125.4, 45.5, 0), Vector(0, 0, 1), 1.5),  # 6
    Part.Circle(Vector(-125.4, 75.5, 0), Vector(0, 0, 1), 1.5),  # 7
], False)
sketch12.addConstraint([
    Sketcher.Constraint("Equal", 0, 1),
    Sketcher.Constraint("Equal", 1, 2),
    Sketcher.Constraint("Equal", 2, 3),
    Sketcher.Constraint("Equal", 3, 4),
    Sketcher.Constraint("Equal", 4, 5),
    Sketcher.Constraint("Equal", 5, 6),
    Sketcher.Constraint("Equal", 6, 7),
    Sketcher.Constraint("Symmetric", 2, 3, 4, 3, -1, 1),
    Sketcher.Constraint("Symmetric", 3, 3, 5, 3, -1, 1),
    Sketcher.Constraint("Symmetric", 0, 3, 6, 3, -1, 1),
    Sketcher.Constraint("Symmetric", 1, 3, 7, 3, -1, 1),
    Sketcher.Constraint("Symmetric", 1, 3, 4, 3, -2),
    Sketcher.Constraint("Symmetric", 0, 3, 5, 3, -2),
    Sketcher.Constraint("Diameter", 0, 3.0),
    Sketcher.Constraint("DistanceY", 1, 3, 0, 3, 30.0),
    Sketcher.Constraint("DistanceY", 0, 3, 2, 3, 121.0),
    Sketcher.Constraint("DistanceX", -1, 1, 0, 3, 125.408442),
    Sketcher.Constraint("DistanceX", 1, 3, 0, 3, 0.001549),
])
pocket11 = body.newObject("PartDesign::Pocket", "Pocket010")
pocket11.Profile = sketch12
pocket11.Type = "ThroughAll"

# Sketch on XY plane
sketch13 = body.newObject("Sketcher::SketchObject", "Sketch012")
sketch13.AttachmentSupport = (doc.getObject("XY_Plane"), [""])
sketch13.MapMode = "FlatFace"
sketch13.AttachmentOffset = App.Placement(Vector(0, 0, 3), App.Rotation())
sketch13.addGeometry([
    Part.Circle(Vector(-6, -114.8, 0), Vector(0, 0, 1), 1),  # 0
    Part.Circle(Vector(6, -114.8, 0), Vector(0, 0, 1), 1),  # 1
    Part.Circle(Vector(-6, -122.8, 0), Vector(0, 0, 1), 1),  # 2
    Part.Circle(Vector(6, -122.8, 0), Vector(0, 0, 1), 1),  # 3
    Part.Circle(Vector(-6, -72.8, 0), Vector(0, 0, 1), 1),  # 4
    Part.Circle(Vector(6, -72.8, 0), Vector(0, 0, 1), 1),  # 5
    Part.Circle(Vector(-6, -64.8, 0), Vector(0, 0, 1), 1),  # 6
    Part.Circle(Vector(6, -64.8, 0), Vector(0, 0, 1), 1),  # 7
], False)
sketch13.addConstraint([
    Sketcher.Constraint("Equal", 0, 1),
    Sketcher.Constraint("Equal", 1, 2),
    Sketcher.Constraint("Equal", 2, 3),
    Sketcher.Constraint("Equal", 3, 4),
    Sketcher.Constraint("Equal", 4, 5),
    Sketcher.Constraint("Equal", 5, 6),
    Sketcher.Constraint("Equal", 6, 7),
    Sketcher.Constraint("Symmetric", 0, 3, 1, 3, -2),
    Sketcher.Constraint("Symmetric", 2, 3, 3, 3, -2),
    Sketcher.Constraint("Symmetric", 4, 3, 5, 3, -2),
    Sketcher.Constraint("Symmetric", 6, 3, 7, 3, -2),
    Sketcher.Constraint("Vertical", 0, 3, 2, 3),
    Sketcher.Constraint("Vertical", 2, 3, 4, 3),
    Sketcher.Constraint("Vertical", 4, 3, 6, 3),
    Sketcher.Constraint("Diameter", 0, 2.0),
    Sketcher.Constraint("DistanceX", 0, 3, -1, 1, 6.0),
    Sketcher.Constraint("DistanceY", 2, 3, 0, 3, 8.0),
    Sketcher.Constraint("DistanceY", 0, 3, 4, 3, 42.0),
    Sketcher.Constraint("DistanceY", 4, 3, 6, 3, 8.0),
    Sketcher.Constraint("DistanceY", 0, 3, -1, 1, 114.75),
])
pocket12 = body.newObject("PartDesign::Pocket", "Pocket011")
pocket12.Profile = sketch13
pocket12.Type = "ThroughAll"

# Sketch on XY plane
sketch14 = body.newObject("Sketcher::SketchObject", "Sketch013")
sketch14.AttachmentSupport = (doc.getObject("XY_Plane"), [""])
sketch14.MapMode = "FlatFace"
sketch14.AttachmentOffset = App.Placement(Vector(0, 0, 3), App.Rotation())
sketch14.addGeometry([
    Part.Circle(Vector(110.9, 10.5, 0), Vector(0, 0, 1), 1.5),
    Part.Circle(Vector(110.9, -10.5, 0), Vector(0, 0, 1), 1.5),
], False)
sketch14.addConstraint([
    Sketcher.Constraint("Equal", 0, 1),
    Sketcher.Constraint("Symmetric", 0, 3, 1, 3, -1),
    Sketcher.Constraint("Diameter", 0, 3.0),
    Sketcher.Constraint("DistanceY", 1, 3, 0, 3, 21.0),
    Sketcher.Constraint("DistanceX", -1, 1, 0, 3, 110.9),
])
pocket13 = body.newObject("PartDesign::Pocket", "Pocket012")
pocket13.Profile = sketch14
pocket13.Type = "ThroughAll"

# Sketch on XY plane
sketch15 = body.newObject("Sketcher::SketchObject", "Sketch014")
sketch15.AttachmentSupport = (doc.getObject("XY_Plane"), [""])
sketch15.MapMode = "FlatFace"
sketch15.AttachmentOffset = App.Placement(Vector(0, 0, 3), App.Rotation())
sketch15.addGeometry([
    Part.Circle(Vector(-40, 124, 0), Vector(0, 0, 1), 1.5),
    Part.Circle(Vector(40, 124, 0), Vector(0, 0, 1), 1.5),
], False)
sketch15.addConstraint([
    Sketcher.Constraint("Equal", 0, 1),
    Sketcher.Constraint("Symmetric", 0, 3, 1, 3, -2),
    Sketcher.Constraint("Diameter", 0, 3.0),
    Sketcher.Constraint("DistanceX", 0, 3, -1, 1, 40.0),
    Sketcher.Constraint("DistanceY", -1, 1, 0, 3, 124.0),
])
pocket14 = body.newObject("PartDesign::Pocket", "Pocket013")
pocket14.Profile = sketch15
pocket14.Type = "ThroughAll"

# Sketch on XY plane
sketch16 = body.newObject("Sketcher::SketchObject", "Sketch015")
sketch16.AttachmentSupport = (doc.getObject("XY_Plane"), [""])
sketch16.MapMode = "FlatFace"
sketch16.AttachmentOffset = App.Placement(Vector(0, 0, 3), App.Rotation())
sketch16.addGeometry([
    Part.Circle(Vector(-13, 119, 0), Vector(0, 0, 1), 1.1),
    Part.Circle(Vector(13, 119, 0), Vector(0, 0, 1), 1.1),
    Part.Circle(Vector(-13, 95, 0), Vector(0, 0, 1), 1.1),
    Part.Circle(Vector(13, 95, 0), Vector(0, 0, 1), 1.1),
], False)
sketch16.addConstraint([
    Sketcher.Constraint("Equal", 0, 1),
    Sketcher.Constraint("Equal", 1, 2),
    Sketcher.Constraint("Equal", 2, 3),
    Sketcher.Constraint("Symmetric", 0, 3, 1, 3, -2),
    Sketcher.Constraint("Symmetric", 2, 3, 3, 3, -2),
    Sketcher.Constraint("Vertical", 0, 3, 2, 3),
    Sketcher.Constraint("Diameter", 0, 2.2),
    Sketcher.Constraint("DistanceX", 0, 3, -1, 1, 13.0),
    Sketcher.Constraint("DistanceY", -1, 1, 0, 3, 119.0),
    Sketcher.Constraint("DistanceY", -1, 1, 2, 3, 95.0),
])
pocket15 = body.newObject("PartDesign::Pocket", "Pocket014")
pocket15.Profile = sketch16
pocket15.Type = "ThroughAll"

# Sketch on XY plane
sketch17 = body.newObject("Sketcher::SketchObject", "Sketch016")
sketch17.AttachmentSupport = (doc.getObject("XY_Plane"), [""])
sketch17.MapMode = "FlatFace"
sketch17.AttachmentOffset = App.Placement(Vector(0, 0, 3), App.Rotation())
sketch17.addGeometry(Part.Circle(Vector(-44.2, 85, 0), Vector(0, 0, 1), 1.5), False)
sketch17.addConstraint([
    Sketcher.Constraint("Diameter", 0, 3.0),
    Sketcher.Constraint("DistanceX", 0, 3, -1, 1, 44.25),
    Sketcher.Constraint("DistanceY", -1, 1, 0, 3, 85.000445),
])
pocket16 = body.newObject("PartDesign::Pocket", "Pocket015")
pocket16.Profile = sketch17
pocket16.Type = "UpToFirst"

# Sketch on XY plane
sketch18 = body.newObject("Sketcher::SketchObject", "Sketch017")
sketch18.AttachmentSupport = (doc.getObject("XY_Plane"), [""])
sketch18.MapMode = "FlatFace"
sketch18.AttachmentOffset = App.Placement(Vector(0, 0, 3), App.Rotation())
sketch18.addGeometry(Part.Circle(Vector(-44.2, 75, 0), Vector(0, 0, 1), 1.5), False)
sketch18.addConstraint([
    Sketcher.Constraint("Diameter", 0, 3.0),
    Sketcher.Constraint("DistanceY", -1, 1, 0, 3, 75.0),
    Sketcher.Constraint("DistanceX", 0, 3, -1, 1, 44.25),
])
pocket17 = body.newObject("PartDesign::Pocket", "Pocket016")
pocket17.Profile = sketch18
pocket17.Type = "UpToFirst"

# Sketch on XY plane
sketch19 = body.newObject("Sketcher::SketchObject", "Sketch018")
sketch19.AttachmentSupport = (doc.getObject("XY_Plane"), [""])
sketch19.MapMode = "FlatFace"
sketch19.AttachmentOffset = App.Placement(Vector(0, 0, 3), App.Rotation())
sketch19.addGeometry(Part.Circle(Vector(24.2, 85, 0), Vector(0, 0, 1), 1.5), False)
sketch19.addConstraint([
    Sketcher.Constraint("Diameter", 0, 3.0),
    Sketcher.Constraint("DistanceY", -1, 1, 0, 3, 85.0),
    Sketcher.Constraint("DistanceX", -1, 1, 0, 3, 24.25),
])
pocket18 = body.newObject("PartDesign::Pocket", "Pocket017")
pocket18.Profile = sketch19
pocket18.Type = "UpToFirst"

# Sketch on XY plane
sketch20 = body.newObject("Sketcher::SketchObject", "Sketch019")
sketch20.AttachmentSupport = (doc.getObject("XY_Plane"), [""])
sketch20.MapMode = "FlatFace"
sketch20.AttachmentOffset = App.Placement(Vector(0, 0, 3), App.Rotation())
sketch20.addGeometry(Part.Circle(Vector(24.2, 75, 0), Vector(0, 0, 1), 1.5), False)
sketch20.addConstraint([
    Sketcher.Constraint("Diameter", 0, 3.0),
    Sketcher.Constraint("DistanceY", -1, 1, 0, 3, 75.0),
    Sketcher.Constraint("DistanceX", -1, 1, 0, 3, 24.25),
])
pocket19 = body.newObject("PartDesign::Pocket", "Pocket018")
pocket19.Profile = sketch20
pocket19.Type = "UpToFirst"

# Sketch on XY plane
sketch21 = body.newObject("Sketcher::SketchObject", "Sketch020")
sketch21.AttachmentSupport = (doc.getObject("XY_Plane"), [""])
sketch21.MapMode = "FlatFace"
sketch21.AttachmentOffset = App.Placement(Vector(0, 0, 3), App.Rotation())
sketch21.addGeometry(Part.Circle(Vector(45, -60, 0), Vector(0, 0, 1), 12), False)
sketch21.addConstraint([
    Sketcher.Constraint("Diameter", 0, 25.0),
    Sketcher.Constraint("DistanceX", -1, 1, 0, 3, 45.0),
    Sketcher.Constraint("DistanceY", 0, 3, -1, 1, 60.0),
])
pocket20 = body.newObject("PartDesign::Pocket", "Pocket019")
pocket20.Profile = sketch21
pocket20.Length = 10

doc.recompute()
